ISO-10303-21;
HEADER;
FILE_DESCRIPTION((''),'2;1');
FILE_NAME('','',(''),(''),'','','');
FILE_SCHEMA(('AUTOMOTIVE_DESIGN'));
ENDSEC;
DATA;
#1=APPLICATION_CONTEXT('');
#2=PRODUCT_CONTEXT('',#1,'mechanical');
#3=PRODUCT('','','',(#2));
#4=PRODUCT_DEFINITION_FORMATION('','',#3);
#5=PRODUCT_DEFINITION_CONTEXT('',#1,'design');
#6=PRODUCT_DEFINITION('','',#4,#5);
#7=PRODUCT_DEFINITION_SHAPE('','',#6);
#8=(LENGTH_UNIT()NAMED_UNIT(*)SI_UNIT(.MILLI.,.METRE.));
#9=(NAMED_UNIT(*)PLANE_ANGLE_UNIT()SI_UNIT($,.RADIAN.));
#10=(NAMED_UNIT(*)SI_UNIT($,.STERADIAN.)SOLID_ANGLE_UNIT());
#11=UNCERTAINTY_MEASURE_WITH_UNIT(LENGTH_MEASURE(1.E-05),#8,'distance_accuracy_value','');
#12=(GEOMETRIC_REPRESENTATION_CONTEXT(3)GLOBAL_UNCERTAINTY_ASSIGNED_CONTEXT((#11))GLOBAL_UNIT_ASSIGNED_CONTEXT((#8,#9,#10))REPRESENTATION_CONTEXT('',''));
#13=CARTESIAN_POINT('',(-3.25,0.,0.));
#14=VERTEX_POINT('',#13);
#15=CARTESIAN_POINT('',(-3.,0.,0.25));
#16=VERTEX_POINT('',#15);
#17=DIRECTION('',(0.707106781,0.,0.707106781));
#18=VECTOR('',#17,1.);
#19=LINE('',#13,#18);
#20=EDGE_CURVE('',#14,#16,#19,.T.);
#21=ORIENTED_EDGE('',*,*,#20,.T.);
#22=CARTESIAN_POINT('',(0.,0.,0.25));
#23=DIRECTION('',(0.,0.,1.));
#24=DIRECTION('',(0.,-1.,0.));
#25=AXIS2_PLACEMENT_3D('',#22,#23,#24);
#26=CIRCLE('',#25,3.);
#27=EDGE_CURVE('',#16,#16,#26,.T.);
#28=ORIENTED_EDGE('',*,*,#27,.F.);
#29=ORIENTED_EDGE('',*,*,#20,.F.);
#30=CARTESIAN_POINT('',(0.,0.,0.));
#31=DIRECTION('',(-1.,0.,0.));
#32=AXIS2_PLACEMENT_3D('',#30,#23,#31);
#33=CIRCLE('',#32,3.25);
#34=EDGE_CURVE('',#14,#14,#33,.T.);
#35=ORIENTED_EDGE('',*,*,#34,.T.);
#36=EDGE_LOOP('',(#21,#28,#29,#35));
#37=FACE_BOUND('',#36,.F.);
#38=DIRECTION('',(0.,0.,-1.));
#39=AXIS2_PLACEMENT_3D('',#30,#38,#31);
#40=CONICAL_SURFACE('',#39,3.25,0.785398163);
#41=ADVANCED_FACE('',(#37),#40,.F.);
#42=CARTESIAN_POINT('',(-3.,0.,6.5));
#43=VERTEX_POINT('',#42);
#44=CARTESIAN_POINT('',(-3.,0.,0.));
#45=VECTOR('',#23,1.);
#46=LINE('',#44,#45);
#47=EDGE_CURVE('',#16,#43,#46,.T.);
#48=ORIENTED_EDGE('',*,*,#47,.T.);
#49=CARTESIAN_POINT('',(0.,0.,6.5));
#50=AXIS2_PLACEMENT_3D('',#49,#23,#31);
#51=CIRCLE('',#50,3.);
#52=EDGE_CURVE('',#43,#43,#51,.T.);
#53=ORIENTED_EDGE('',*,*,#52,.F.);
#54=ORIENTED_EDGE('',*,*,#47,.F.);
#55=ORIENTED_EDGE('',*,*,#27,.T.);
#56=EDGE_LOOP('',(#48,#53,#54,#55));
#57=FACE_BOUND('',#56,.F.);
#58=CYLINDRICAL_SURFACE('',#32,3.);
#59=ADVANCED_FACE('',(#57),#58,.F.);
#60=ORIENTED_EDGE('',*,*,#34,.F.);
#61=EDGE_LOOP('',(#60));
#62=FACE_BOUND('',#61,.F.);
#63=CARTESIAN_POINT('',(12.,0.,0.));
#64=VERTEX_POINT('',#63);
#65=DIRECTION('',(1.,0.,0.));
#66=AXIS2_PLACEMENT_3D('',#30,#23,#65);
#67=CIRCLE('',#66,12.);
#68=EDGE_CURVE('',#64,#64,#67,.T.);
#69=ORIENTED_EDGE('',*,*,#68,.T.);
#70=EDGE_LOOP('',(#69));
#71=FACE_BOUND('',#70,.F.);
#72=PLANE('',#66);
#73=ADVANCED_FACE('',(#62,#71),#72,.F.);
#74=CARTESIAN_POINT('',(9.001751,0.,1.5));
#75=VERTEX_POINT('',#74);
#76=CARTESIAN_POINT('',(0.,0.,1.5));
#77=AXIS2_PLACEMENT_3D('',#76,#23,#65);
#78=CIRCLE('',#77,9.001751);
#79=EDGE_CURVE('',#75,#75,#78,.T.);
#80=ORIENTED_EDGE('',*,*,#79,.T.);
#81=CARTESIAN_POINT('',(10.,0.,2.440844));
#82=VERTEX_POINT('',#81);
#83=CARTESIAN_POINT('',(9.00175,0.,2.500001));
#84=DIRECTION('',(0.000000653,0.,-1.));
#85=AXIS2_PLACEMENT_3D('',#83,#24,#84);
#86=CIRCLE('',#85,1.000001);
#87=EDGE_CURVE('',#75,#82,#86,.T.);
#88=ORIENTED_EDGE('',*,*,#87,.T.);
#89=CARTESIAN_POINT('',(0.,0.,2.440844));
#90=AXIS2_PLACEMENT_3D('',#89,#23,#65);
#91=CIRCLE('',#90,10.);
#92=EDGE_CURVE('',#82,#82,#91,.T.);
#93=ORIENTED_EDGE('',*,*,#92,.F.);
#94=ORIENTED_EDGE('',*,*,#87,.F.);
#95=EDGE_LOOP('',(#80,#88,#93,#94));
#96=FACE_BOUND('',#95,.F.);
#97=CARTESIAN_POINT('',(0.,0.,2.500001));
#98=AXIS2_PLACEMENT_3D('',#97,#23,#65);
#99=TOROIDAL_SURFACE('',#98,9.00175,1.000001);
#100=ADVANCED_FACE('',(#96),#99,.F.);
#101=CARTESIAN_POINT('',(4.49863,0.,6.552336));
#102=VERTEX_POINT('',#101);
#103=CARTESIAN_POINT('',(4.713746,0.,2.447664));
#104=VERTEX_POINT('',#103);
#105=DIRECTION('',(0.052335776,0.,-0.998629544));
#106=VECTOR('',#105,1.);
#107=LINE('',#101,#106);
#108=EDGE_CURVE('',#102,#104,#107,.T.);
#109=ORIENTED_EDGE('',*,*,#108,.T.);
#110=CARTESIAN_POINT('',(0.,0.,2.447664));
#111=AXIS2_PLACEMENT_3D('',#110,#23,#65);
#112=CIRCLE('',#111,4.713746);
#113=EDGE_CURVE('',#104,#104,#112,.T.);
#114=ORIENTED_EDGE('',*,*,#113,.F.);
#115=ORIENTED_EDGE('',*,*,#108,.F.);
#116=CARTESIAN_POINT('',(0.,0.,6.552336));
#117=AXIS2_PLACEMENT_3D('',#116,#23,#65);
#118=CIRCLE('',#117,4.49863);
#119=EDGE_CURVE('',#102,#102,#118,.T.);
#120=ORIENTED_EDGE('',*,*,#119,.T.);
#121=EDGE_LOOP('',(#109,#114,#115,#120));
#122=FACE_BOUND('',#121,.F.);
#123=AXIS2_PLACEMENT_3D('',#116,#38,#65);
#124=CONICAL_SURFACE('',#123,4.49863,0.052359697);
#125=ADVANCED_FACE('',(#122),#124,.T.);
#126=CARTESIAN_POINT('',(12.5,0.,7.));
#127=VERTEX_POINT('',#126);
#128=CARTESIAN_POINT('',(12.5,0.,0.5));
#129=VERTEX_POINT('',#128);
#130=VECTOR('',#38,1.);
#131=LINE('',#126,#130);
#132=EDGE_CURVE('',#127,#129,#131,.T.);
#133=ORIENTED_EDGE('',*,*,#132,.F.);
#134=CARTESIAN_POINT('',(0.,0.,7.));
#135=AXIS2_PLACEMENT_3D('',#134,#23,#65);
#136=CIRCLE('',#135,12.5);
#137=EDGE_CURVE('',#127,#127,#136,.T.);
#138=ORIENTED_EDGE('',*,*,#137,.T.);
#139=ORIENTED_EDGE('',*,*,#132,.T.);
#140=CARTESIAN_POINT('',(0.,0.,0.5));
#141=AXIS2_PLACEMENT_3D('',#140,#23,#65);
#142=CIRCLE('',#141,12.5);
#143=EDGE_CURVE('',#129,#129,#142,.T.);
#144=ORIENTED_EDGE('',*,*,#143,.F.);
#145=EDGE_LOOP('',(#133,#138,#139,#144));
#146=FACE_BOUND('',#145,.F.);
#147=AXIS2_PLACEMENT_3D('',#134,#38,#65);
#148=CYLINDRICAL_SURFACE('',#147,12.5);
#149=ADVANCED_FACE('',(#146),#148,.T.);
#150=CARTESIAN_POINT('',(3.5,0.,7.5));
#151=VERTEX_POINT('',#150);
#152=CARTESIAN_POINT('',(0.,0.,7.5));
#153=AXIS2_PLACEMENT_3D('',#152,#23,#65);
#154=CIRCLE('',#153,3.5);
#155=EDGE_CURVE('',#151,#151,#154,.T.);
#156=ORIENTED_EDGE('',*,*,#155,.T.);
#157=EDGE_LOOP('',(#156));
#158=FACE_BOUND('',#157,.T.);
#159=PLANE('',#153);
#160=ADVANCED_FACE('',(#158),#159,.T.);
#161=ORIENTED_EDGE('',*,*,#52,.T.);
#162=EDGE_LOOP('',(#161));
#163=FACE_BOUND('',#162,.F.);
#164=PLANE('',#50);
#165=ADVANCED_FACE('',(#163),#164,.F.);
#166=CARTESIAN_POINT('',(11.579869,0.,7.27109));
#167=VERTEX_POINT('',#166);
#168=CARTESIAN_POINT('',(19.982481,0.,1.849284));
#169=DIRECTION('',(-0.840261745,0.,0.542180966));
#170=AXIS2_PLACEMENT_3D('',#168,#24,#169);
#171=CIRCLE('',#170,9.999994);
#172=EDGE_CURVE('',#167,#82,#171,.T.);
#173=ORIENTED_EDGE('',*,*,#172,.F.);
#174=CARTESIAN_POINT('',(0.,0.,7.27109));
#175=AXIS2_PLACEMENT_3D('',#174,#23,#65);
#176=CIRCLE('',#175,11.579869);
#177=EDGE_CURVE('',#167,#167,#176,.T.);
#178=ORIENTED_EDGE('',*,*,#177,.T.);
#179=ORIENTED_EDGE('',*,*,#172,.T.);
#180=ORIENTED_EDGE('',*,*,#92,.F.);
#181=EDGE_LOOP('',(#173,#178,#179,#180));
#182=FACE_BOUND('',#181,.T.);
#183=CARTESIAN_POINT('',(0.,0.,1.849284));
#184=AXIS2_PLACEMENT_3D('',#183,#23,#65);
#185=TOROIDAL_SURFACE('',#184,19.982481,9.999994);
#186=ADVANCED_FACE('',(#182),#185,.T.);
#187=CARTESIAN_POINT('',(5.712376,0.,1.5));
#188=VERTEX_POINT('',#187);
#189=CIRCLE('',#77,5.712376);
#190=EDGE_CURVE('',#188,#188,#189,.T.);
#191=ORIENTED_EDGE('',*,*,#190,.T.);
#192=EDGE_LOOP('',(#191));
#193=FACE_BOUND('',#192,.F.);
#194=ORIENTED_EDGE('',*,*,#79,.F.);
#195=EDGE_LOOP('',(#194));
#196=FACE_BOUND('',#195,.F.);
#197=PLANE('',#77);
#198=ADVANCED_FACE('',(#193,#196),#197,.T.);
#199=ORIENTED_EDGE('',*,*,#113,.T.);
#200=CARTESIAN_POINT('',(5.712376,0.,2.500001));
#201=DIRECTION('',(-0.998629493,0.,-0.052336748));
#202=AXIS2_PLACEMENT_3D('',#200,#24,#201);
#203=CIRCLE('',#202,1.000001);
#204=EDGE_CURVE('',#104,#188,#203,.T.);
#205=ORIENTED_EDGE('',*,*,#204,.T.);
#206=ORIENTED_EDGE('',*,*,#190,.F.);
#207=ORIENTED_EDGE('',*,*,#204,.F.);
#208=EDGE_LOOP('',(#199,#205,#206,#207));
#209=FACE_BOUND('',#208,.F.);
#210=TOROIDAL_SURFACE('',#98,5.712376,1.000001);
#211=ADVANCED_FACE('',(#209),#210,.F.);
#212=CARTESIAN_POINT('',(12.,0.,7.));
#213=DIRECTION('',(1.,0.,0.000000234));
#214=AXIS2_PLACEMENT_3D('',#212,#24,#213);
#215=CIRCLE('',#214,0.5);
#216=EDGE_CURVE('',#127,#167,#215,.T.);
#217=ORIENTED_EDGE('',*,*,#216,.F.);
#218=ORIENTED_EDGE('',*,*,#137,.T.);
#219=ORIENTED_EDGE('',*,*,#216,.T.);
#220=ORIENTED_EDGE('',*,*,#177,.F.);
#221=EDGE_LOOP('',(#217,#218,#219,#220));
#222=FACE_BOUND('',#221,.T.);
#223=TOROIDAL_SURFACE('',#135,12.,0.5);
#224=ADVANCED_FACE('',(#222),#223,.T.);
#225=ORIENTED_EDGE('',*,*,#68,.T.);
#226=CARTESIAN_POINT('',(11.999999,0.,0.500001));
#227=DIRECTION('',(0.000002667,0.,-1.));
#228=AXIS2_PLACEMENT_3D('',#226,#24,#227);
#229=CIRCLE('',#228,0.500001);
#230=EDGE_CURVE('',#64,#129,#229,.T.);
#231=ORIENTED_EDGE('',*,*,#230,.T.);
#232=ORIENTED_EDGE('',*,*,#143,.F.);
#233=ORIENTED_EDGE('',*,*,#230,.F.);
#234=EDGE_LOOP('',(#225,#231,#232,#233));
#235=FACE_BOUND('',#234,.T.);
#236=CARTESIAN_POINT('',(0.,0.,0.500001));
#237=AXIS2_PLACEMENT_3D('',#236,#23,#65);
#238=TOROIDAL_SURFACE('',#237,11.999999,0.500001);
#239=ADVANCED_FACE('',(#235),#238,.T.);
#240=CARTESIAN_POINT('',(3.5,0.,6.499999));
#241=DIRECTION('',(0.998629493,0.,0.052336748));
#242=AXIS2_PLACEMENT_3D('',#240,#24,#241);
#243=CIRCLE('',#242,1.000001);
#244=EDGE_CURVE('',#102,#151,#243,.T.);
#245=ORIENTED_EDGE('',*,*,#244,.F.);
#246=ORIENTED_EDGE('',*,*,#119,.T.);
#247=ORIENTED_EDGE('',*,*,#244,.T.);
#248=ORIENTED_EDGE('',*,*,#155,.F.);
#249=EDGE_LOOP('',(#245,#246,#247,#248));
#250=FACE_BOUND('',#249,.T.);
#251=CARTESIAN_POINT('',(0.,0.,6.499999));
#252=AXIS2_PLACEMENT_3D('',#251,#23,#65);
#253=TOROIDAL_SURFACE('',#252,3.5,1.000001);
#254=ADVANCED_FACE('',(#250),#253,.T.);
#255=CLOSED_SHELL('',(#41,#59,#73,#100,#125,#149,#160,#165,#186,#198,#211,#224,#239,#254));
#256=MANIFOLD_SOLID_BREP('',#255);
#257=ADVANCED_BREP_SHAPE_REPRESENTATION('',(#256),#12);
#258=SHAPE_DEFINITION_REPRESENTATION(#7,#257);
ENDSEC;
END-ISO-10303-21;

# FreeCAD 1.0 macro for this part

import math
import FreeCAD as App
import Part
import Sketcher

V = App.Vector
Q = App.Units.Quantity

doc = App.newDocument("Part")
body = doc.addObject("PartDesign::Body", "Body")

# Sketch on XZ plane
sketch1 = doc.addObject("Sketcher::SketchObject", "Sketch")
body.addObject(sketch1)
sketch1.AttachmentSupport = (doc.XZ_Plane, [""])
sketch1.MapMode = "FlatFace"
sketch1.addGeometry(Part.LineSegment(V(12.5, 0.5, 0), V(12.5, 7, 0)), False)
sketch1.addGeometry(Part.ArcOfCircle(Part.Circle(V(12, 7, 0), V(0, 0, 1), 0.5), math.radians(0), math.radians(147)), False)
sketch1.addGeometry(Part.ArcOfCircle(Part.Circle(V(19.98, 1.85, 0), V(0, 0, 1), 10), math.radians(147), math.radians(177)), False)
sketch1.addGeometry(Part.ArcOfCircle(Part.Circle(V(9, 2.5, 0), V(0, 0, 1), 1), math.radians(-90), math.radians(-3)), False)
sketch1.addGeometry(Part.LineSegment(V(9, 1.5, 0), V(5.71, 1.5, 0)), False)
sketch1.addGeometry(Part.ArcOfCircle(Part.Circle(V(5.71, 2.5, 0), V(0, 0, 1), 1), math.radians(-177), math.radians(-90)), False)
sketch1.addGeometry(Part.LineSegment(V(4.71, 2.45, 0), V(4.5, 6.55, 0)), False)
sketch1.addGeometry(Part.ArcOfCircle(Part.Circle(V(3.5, 6.5, 0), V(0, 0, 1), 1), math.radians(3), math.radians(90)), False)
sketch1.addGeometry(Part.LineSegment(V(3.5, 7.5, 0), V(0, 7.5, 0)), False)
sketch1.addGeometry(Part.LineSegment(V(0, 7.5, 0), V(0, 0, 0)), False)
sketch1.addGeometry(Part.LineSegment(V(0, 0, 0), V(12, 0, 0)), False)
sketch1.addGeometry(Part.ArcOfCircle(Part.Circle(V(12, 0.5, 0), V(0, 0, 1), 0.5), math.radians(-90), math.radians(0)), False)
sketch1.addConstraint(Sketcher.Constraint("Tangent", 0, 2, 1, 1))
sketch1.addConstraint(Sketcher.Constraint("Tangent", 1, 2, 2, 1))
sketch1.addConstraint(Sketcher.Constraint("Tangent", 2, 2, 3, 2))
sketch1.addConstraint(Sketcher.Constraint("Tangent", 3, 1, 4, 1))
sketch1.addConstraint(Sketcher.Constraint("Tangent", 4, 2, 5, 2))
sketch1.addConstraint(Sketcher.Constraint("Tangent", 5, 1, 6, 1))
sketch1.addConstraint(Sketcher.Constraint("Tangent", 6, 2, 7, 1))
sketch1.addConstraint(Sketcher.Constraint("Tangent", 7, 2, 8, 1))
sketch1.addConstraint(Sketcher.Constraint("Coincident", 8, 2, 9, 1))
sketch1.addConstraint(Sketcher.Constraint("Coincident", 9, 2, 10, 1))
sketch1.addConstraint(Sketcher.Constraint("Coincident", 10, 2, 11, 1))
sketch1.addConstraint(Sketcher.Constraint("Coincident", 11, 2, 0, 1))
sketch1.addConstraint(Sketcher.Constraint("Vertical", 0))
sketch1.addConstraint(Sketcher.Constraint("Horizontal", 4))
sketch1.addConstraint(Sketcher.Constraint("Horizontal", 8))
sketch1.addConstraint(Sketcher.Constraint("Vertical", 9))
sketch1.addConstraint(Sketcher.Constraint("Horizontal", 10))
sketch1.addConstraint(Sketcher.Constraint("Coincident", 9, 2, -1, 1))
sketch1.addConstraint(Sketcher.Constraint("Equal", 3, 5))
sketch1.addConstraint(Sketcher.Constraint("Equal", 5, 7))
sketch1.addConstraint(Sketcher.Constraint("Equal", 1, 11))
sketch1.addConstraint(Sketcher.Constraint("Vertical", 11, 3, 10, 2))
sketch1.addConstraint(Sketcher.Constraint("Radius", 3, Q("1.000001 mm")))
sketch1.addConstraint(Sketcher.Constraint("Radius", 1, Q("0.5 mm")))
sketch1.addConstraint(Sketcher.Constraint("DistanceX", 10, 1, 10, 2, Q("12 mm")))
sketch1.addConstraint(Sketcher.Constraint("Angle", 6, Q("92.99999 deg")))
sketch1.addConstraint(Sketcher.Constraint("DistanceX", 8, 2, 8, 1, Q("3.5 mm")))
sketch1.addConstraint(Sketcher.Constraint("DistanceY", 0, 1, 0, 2, Q("6.5 mm")))
sketch1.addConstraint(Sketcher.Constraint("DistanceY", 9, 2, 9, 1, Q("7.5 mm")))
sketch1.addConstraint(Sketcher.Constraint("DistanceY", -1, 1, 1, 3, Q("7 mm")))
sketch1.addConstraint(Sketcher.Constraint("DistanceX", -1, 1, 2, 2, Q("10 mm")))
sketch1.addConstraint(Sketcher.Constraint("DistanceY", 5, 3, 7, 3, Q("3.999998 mm")))
sketch1.addConstraint(Sketcher.Constraint("Radius", 2, Q("9.999994 mm")))
revolution = doc.addObject("PartDesign::Revolution", "Revolution")
body.addObject(revolution)
revolution.Profile = sketch1
revolution.ReferenceAxis = (sketch1, ["V_Axis"])
revolution.Angle = 360

# Sketch on XY plane
sketch2 = doc.addObject("Sketcher::SketchObject", "Sketch001")
body.addObject(sketch2)
sketch2.AttachmentSupport = (doc.XY_Plane, [""])
sketch2.MapMode = "FlatFace"
sketch2.addGeometry(Part.Circle(V(0, 0, 0), V(0, 0, 1), 3), False)
sketch2.addConstraint(Sketcher.Constraint("Coincident", 0, 3, -1, 1))
sketch2.addConstraint(Sketcher.Constraint("Diameter", 0, Q("6 mm")))
doc.recompute()
hole = doc.addObject("PartDesign::Hole", "Hole")
body.addObject(hole)
hole.Profile = sketch2
hole.ThreadType = "None"
hole.Diameter = 6
hole.DepthType = "Dimension"
hole.Depth = 6.5
hole.DrillPoint = "Flat"
hole.HoleCutType = "Countersink"
hole.HoleCutDiameter = 6.5
hole.HoleCutCountersinkAngle = 90
hole.Reversed = True

doc.recompute()
